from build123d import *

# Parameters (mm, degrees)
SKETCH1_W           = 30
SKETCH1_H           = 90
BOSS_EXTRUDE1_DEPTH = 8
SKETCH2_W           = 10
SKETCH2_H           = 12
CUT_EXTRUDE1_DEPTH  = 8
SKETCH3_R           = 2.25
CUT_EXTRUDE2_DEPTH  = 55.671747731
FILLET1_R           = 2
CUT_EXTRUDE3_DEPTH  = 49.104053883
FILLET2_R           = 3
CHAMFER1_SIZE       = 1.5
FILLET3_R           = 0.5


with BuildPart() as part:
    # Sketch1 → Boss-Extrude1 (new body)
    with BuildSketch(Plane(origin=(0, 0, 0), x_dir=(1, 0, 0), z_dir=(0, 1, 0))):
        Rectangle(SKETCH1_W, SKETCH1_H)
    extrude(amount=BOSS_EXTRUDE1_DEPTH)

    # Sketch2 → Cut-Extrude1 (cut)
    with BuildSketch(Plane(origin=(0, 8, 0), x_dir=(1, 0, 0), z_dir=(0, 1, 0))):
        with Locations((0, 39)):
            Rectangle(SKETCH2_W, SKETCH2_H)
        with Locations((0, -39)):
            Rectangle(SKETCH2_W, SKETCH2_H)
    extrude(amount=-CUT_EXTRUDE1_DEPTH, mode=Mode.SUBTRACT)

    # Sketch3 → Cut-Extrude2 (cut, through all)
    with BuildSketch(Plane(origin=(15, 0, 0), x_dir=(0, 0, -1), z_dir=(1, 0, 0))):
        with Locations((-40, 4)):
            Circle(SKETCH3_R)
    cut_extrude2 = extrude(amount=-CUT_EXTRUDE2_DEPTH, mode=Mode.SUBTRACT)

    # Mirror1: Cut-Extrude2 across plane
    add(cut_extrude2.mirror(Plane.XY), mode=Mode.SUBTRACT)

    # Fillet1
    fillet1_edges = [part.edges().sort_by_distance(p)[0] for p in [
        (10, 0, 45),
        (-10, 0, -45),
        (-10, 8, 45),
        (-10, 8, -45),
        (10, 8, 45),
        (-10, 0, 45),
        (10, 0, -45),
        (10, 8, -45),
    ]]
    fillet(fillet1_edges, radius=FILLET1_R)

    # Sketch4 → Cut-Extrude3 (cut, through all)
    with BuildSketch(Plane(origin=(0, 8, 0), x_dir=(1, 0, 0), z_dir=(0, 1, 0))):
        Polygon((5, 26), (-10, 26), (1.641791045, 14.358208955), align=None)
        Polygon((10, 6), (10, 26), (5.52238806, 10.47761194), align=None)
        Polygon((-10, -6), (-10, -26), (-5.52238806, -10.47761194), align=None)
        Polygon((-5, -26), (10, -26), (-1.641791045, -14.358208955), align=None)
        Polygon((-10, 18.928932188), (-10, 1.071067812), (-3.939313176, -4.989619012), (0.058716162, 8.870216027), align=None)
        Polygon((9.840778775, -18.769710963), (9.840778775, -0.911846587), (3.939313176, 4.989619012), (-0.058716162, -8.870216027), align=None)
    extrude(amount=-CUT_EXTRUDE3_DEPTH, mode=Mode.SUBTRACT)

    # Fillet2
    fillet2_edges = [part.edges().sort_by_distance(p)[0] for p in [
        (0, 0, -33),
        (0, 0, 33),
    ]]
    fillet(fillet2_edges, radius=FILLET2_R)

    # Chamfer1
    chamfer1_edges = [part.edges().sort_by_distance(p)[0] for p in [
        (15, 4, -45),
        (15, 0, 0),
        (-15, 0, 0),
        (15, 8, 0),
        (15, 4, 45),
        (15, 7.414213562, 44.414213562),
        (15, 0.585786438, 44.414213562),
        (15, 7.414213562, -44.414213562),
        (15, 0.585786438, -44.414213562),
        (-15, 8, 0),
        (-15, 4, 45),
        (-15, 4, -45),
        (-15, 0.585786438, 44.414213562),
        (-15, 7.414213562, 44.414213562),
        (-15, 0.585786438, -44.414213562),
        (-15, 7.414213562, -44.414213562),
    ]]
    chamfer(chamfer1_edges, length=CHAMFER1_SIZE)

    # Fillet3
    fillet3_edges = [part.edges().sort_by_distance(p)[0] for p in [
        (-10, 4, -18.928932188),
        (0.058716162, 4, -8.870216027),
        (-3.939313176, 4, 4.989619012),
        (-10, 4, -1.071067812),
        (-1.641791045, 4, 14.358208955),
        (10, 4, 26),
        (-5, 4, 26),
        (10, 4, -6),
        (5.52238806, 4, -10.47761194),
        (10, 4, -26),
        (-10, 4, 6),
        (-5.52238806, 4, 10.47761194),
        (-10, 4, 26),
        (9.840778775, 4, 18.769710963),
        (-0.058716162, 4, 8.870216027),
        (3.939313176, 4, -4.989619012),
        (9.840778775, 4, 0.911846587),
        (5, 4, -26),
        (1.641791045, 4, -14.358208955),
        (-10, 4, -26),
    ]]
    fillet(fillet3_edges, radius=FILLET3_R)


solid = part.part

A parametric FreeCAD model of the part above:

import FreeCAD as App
import Part
import Sketcher

V = App.Vector
Q = App.Units.Quantity


def edges_at(feature, points):
    """Names of the edges that pass closest to the given points."""
    edges = feature.Shape.Edges
    near = lambda p: min(range(len(edges)), key=lambda i: edges[i].distToShape(Part.Vertex(*p))[0])
    return sorted({f"Edge{near(p) + 1}" for p in points})

doc = App.newDocument("Part")
body = doc.addObject("PartDesign::Body", "Body")

# Sketch on XZ plane
sketch1 = body.newObject("Sketcher::SketchObject", "Sketch")
sketch1.AttachmentSupport = (doc.getObject("XZ_Plane"), [""])
sketch1.MapMode = "FlatFace"
sketch1.addGeometry([
    Part.LineSegment(V(-15, -45, 0), V(-15, 45, 0)),
    Part.LineSegment(V(-15, 45, 0), V(15, 45, 0)),
    Part.LineSegment(V(15, 45, 0), V(15, -45, 0)),
    Part.LineSegment(V(15, -45, 0), V(-15, -45, 0)),
], False)
sketch1.addConstraint([
    Sketcher.Constraint("Coincident", 0, 2, 1, 1),
    Sketcher.Constraint("Coincident", 1, 2, 2, 1),
    Sketcher.Constraint("Coincident", 2, 2, 3, 1),
    Sketcher.Constraint("Coincident", 3, 2, 0, 1),
    Sketcher.Constraint("Vertical", 0),
    Sketcher.Constraint("Horizontal", 1),
    Sketcher.Constraint("Vertical", 2),
    Sketcher.Constraint("Horizontal", 3),
    Sketcher.Constraint("Symmetric", 0, 2, 2, 2, -1, 1),
    Sketcher.Constraint("DistanceX", 1, 1, 1, 2, 30.0),
    Sketcher.Constraint("DistanceY", 0, 1, 0, 2, 90.0),
])
pad1 = body.newObject("PartDesign::Pad", "Pad")
pad1.Profile = sketch1
pad1.Length = 8
pad1.Reversed = True

# Sketch on XZ plane
sketch2 = body.newObject("Sketcher::SketchObject", "Sketch001")
sketch2.AttachmentSupport = (doc.getObject("XZ_Plane"), [""])
sketch2.MapMode = "FlatFace"
sketch2.AttachmentOffset = App.Placement(V(0, 0, -8), App.Rotation())
sketch2.addGeometry([
    Part.LineSegment(V(-5, -45, 0), V(-5, -33, 0)),  # 0
    Part.LineSegment(V(-5, -33, 0), V(5, -33, 0)),  # 1
    Part.LineSegment(V(5, -33, 0), V(5, -45, 0)),  # 2
    Part.LineSegment(V(5, -45, 0), V(-5, -45, 0)),  # 3
    Part.LineSegment(V(-5, 33, 0), V(-5, 45, 0)),  # 4
    Part.LineSegment(V(-5, 45, 0), V(5, 45, 0)),  # 5
    Part.LineSegment(V(5, 45, 0), V(5, 33, 0)),  # 6
    Part.LineSegment(V(5, 33, 0), V(-5, 33, 0)),  # 7
], False)
sketch2.addConstraint([
    Sketcher.Constraint("Coincident", 0, 2, 1, 1),
    Sketcher.Constraint("Coincident", 1, 2, 2, 1),
    Sketcher.Constraint("Coincident", 2, 2, 3, 1),
    Sketcher.Constraint("Coincident", 3, 2, 0, 1),
    Sketcher.Constraint("Coincident", 4, 2, 5, 1),
    Sketcher.Constraint("Coincident", 5, 2, 6, 1),
    Sketcher.Constraint("Coincident", 6, 2, 7, 1),
    Sketcher.Constraint("Coincident", 7, 2, 4, 1),
    Sketcher.Constraint("Vertical", 0),
    Sketcher.Constraint("Horizontal", 1),
    Sketcher.Constraint("Vertical", 2),
    Sketcher.Constraint("Horizontal", 3),
    Sketcher.Constraint("Vertical", 4),
    Sketcher.Constraint("Horizontal", 5),
    Sketcher.Constraint("Vertical", 6),
    Sketcher.Constraint("Horizontal", 7),
    Sketcher.Constraint("Symmetric", 2, 2, 4, 2, -1, 1),
    Sketcher.Constraint("Symmetric", 0, 2, 6, 2, -1, 1),
    Sketcher.Constraint("Vertical", 3, 2, 4, 2),
    Sketcher.Constraint("DistanceX", 1, 1, 1, 2, 10.0),
    Sketcher.Constraint("DistanceY", 0, 1, 0, 2, 12.0),
    Sketcher.Constraint("DistanceY", 0, 2, -1, 1, 33.0),
])
pocket1 = body.newObject("PartDesign::Pocket", "Pocket")
pocket1.Profile = sketch2
pocket1.Length = 8
pocket1.Reversed = True

# Sketch on YZ plane
sketch3 = body.newObject("Sketcher::SketchObject", "Sketch002")
sketch3.AttachmentSupport = (doc.getObject("YZ_Plane"), [""])
sketch3.MapMode = "FlatFace"
sketch3.AttachmentOffset = App.Placement(V(0, 0, 15), App.Rotation())
sketch3.addGeometry(Part.Circle(V(4, 40, 0), V(0, 0, 1), 2.2), False)
sketch3.addConstraint([
    Sketcher.Constraint("Diameter", 0, 4.5),
    Sketcher.Constraint("DistanceX", -1, 1, 0, 3, 4.0),
    Sketcher.Constraint("DistanceY", -1, 1, 0, 3, 40.0),
])
pocket2 = body.newObject("PartDesign::Pocket", "Pocket001")
pocket2.Profile = sketch3
pocket2.Type = "ThroughAll"
doc.recompute()

mirrored = body.newObject("PartDesign::Mirrored", "Mirrored")
mirrored.Originals = [pocket2]
mirrored.MirrorPlane = (doc.getObject("XY_Plane"), [""])
body.Tip = mirrored
doc.recompute()

fillet = body.newObject("PartDesign::Fillet", "Fillet")
fillet.Base = (mirrored, edges_at(mirrored, [
    (10, 0, 45),
    (-10, 0, -45),
    (-10, 8, 45),
    (-10, 8, -45),
    (10, 8, 45),
    (-10, 0, 45),
    (10, 0, -45),
    (10, 8, -45),
]))
fillet.Radius = 2

# Sketch on XZ plane
sketch4 = body.newObject("Sketcher::SketchObject", "Sketch003")
sketch4.AttachmentSupport = (doc.getObject("XZ_Plane"), [""])
sketch4.MapMode = "FlatFace"
sketch4.AttachmentOffset = App.Placement(V(0, 0, -8), App.Rotation())
sketch4.addGeometry([
    Part.LineSegment(V(5, -26, 0), V(-10, -26, 0)),  # 0
    Part.LineSegment(V(-10, -26, 0), V(2, -14, 0)),  # 1
    Part.LineSegment(V(2, -14, 0), V(5, -26, 0)),  # 2
    Part.LineSegment(V(10, -6, 0), V(10, -26, 0)),  # 3
    Part.LineSegment(V(10, -26, 0), V(6, -10, 0)),  # 4
    Part.LineSegment(V(6, -10, 0), V(10, -6, 0)),  # 5
    Part.LineSegment(V(-10, 6, 0), V(-10, 26, 0)),  # 6
    Part.LineSegment(V(-10, 26, 0), V(-6, 10, 0)),  # 7
    Part.LineSegment(V(-6, 10, 0), V(-10, 6, 0)),  # 8
    Part.LineSegment(V(-5, 26, 0), V(10, 26, 0)),  # 9
    Part.LineSegment(V(10, 26, 0), V(-2, 14, 0)),  # 10
    Part.LineSegment(V(-2, 14, 0), V(-5, 26, 0)),  # 11
    Part.LineSegment(V(-10, -19, 0), V(-10, -1, 0)),  # 12
    Part.LineSegment(V(-10, -1, 0), V(-4, 5, 0)),  # 13
    Part.LineSegment(V(-4, 5, 0), V(0, -9, 0)),  # 14
    Part.LineSegment(V(0, -9, 0), V(-10, -19, 0)),  # 15
    Part.LineSegment(V(10, 19, 0), V(10, 1, 0)),  # 16
    Part.LineSegment(V(10, 1, 0), V(4, -5, 0)),  # 17
    Part.LineSegment(V(4, -5, 0), V(0, 9, 0)),  # 18
    Part.LineSegment(V(0, 9, 0), V(10, 19, 0)),  # 19
], False)
sketch4.addConstraint([
    Sketcher.Constraint("Coincident", 0, 2, 1, 1),
    Sketcher.Constraint("Coincident", 1, 2, 2, 1),
    Sketcher.Constraint("Coincident", 2, 2, 0, 1),
    Sketcher.Constraint("Coincident", 3, 2, 4, 1),
    Sketcher.Constraint("Coincident", 4, 2, 5, 1),
    Sketcher.Constraint("Coincident", 5, 2, 3, 1),
    Sketcher.Constraint("Coincident", 6, 2, 7, 1),
    Sketcher.Constraint("Coincident", 7, 2, 8, 1),
    Sketcher.Constraint("Coincident", 8, 2, 6, 1),
    Sketcher.Constraint("Coincident", 9, 2, 10, 1),
    Sketcher.Constraint("Coincident", 10, 2, 11, 1),
    Sketcher.Constraint("Coincident", 11, 2, 9, 1),
    Sketcher.Constraint("Coincident", 12, 2, 13, 1),
    Sketcher.Constraint("Coincident", 13, 2, 14, 1),
    Sketcher.Constraint("Coincident", 14, 2, 15, 1),
    Sketcher.Constraint("Coincident", 15, 2, 12, 1),
    Sketcher.Constraint("Coincident", 16, 2, 17, 1),
    Sketcher.Constraint("Coincident", 17, 2, 18, 1),
    Sketcher.Constraint("Coincident", 18, 2, 19, 1),
    Sketcher.Constraint("Coincident", 19, 2, 16, 1),
    Sketcher.Constraint("Horizontal", 0),
    Sketcher.Constraint("Vertical", 3),
    Sketcher.Constraint("Vertical", 6),
    Sketcher.Constraint("Horizontal", 9),
    Sketcher.Constraint("Vertical", 12),
    Sketcher.Constraint("Vertical", 16),
    Sketcher.Constraint("Symmetric", 3, 2, 6, 2, -1, 1),
    Sketcher.Constraint("Symmetric", 4, 2, 7, 2, -1, 1),
    Sketcher.Constraint("Symmetric", 0, 2, 9, 2, -1, 1),
    Sketcher.Constraint("Symmetric", 1, 2, 10, 2, -1, 1),
    Sketcher.Constraint("Symmetric", 13, 2, 17, 2, -1, 1),
    Sketcher.Constraint("Symmetric", 14, 2, 18, 2, -1, 1),
    Sketcher.Constraint("Symmetric", 0, 2, 3, 2, -2),
    Sketcher.Constraint("Parallel", 2, 4),
    Sketcher.Constraint("Parallel", 1, 5),
    Sketcher.Constraint("Parallel", 5, 8),
    Sketcher.Constraint("Parallel", 7, 11),
    Sketcher.Constraint("Parallel", 10, 13),
    Sketcher.Constraint("Parallel", 11, 14),
    Sketcher.Constraint("Parallel", 13, 15),
    Sketcher.Constraint("Parallel", 15, 17),
    Sketcher.Constraint("Parallel", 17, 19),
    Sketcher.Constraint("Vertical", 8, 2, 12, 2),
    Sketcher.Constraint("DistanceX", 0, 2, 0, 1, 15.0),
    Sketcher.Constraint("DistanceY", 3, 2, 3, 1, 20.0),
    Sketcher.Constraint("Angle", 1, Q("45 deg")),
    Sketcher.Constraint("Distance", 19, 14.0),
    Sketcher.Constraint("DistanceX", 0, 2, -1, 1, 10.0),
    Sketcher.Constraint("DistanceY", 0, 2, -1, 1, 26.0),
    Sketcher.Constraint("Distance", 5, 6.3323),
    Sketcher.Constraint("DistanceY", 7, 2, 19, 2, 8.292099),
    Sketcher.Constraint("DistanceY", 12, 1, 12, 2, 17.857864),
    Sketcher.Constraint("DistanceX", -1, 1, 16, 2, 9.840779),
])
pocket3 = body.newObject("PartDesign::Pocket", "Pocket002")
pocket3.Profile = sketch4
pocket3.Type = "ThroughAll"
pocket3.Reversed = True
doc.recompute()

fillet2 = body.newObject("PartDesign::Fillet", "Fillet001")
fillet2.Base = (pocket3, edges_at(pocket3, [(0, 0, -33), (0, 0, 33)]))
fillet2.Radius = 3
doc.recompute()

chamfer = body.newObject("PartDesign::Chamfer", "Chamfer")
chamfer.Base = (fillet2, edges_at(fillet2, [
    (15, 4, -45),
    (15, 0, 0),
    (-15, 0, 0),
    (15, 8, 0),
    (15, 4, 45),
    (15, 7.414, 44.414),
    (15, 0.586, 44.414),
    (15, 7.414, -44.414),
    (15, 0.586, -44.414),
    (-15, 8, 0),
    (-15, 4, 45),
    (-15, 4, -45),
    (-15, 0.586, 44.414),
    (-15, 7.414, 44.414),
    (-15, 0.586, -44.414),
    (-15, 7.414, -44.414),
]))
chamfer.Size = 1.5
doc.recompute()

fillet3 = body.newObject("PartDesign::Fillet", "Fillet002")
fillet3.Base = (chamfer, edges_at(chamfer, [
    (-10, 4, -18.929),
    (0.059, 4, -8.87),
    (-3.939, 4, 4.99),
    (-10, 4, -1.071),
    (-1.642, 4, 14.358),
    (10, 4, 26),
    (-5, 4, 26),
    (10, 4, -6),
    (5.522, 4, -10.478),
    (10, 4, -26),
    (-10, 4, 6),
    (-5.522, 4, 10.478),
    (-10, 4, 26),
    (9.841, 4, 18.77),
    (-0.059, 4, 8.87),
    (3.939, 4, -4.99),
    (9.841, 4, 0.912),
    (5, 4, -26),
    (1.642, 4, -14.358),
    (-10, 4, -26),
]))
fillet3.Radius = 0.5

doc.recompute()
